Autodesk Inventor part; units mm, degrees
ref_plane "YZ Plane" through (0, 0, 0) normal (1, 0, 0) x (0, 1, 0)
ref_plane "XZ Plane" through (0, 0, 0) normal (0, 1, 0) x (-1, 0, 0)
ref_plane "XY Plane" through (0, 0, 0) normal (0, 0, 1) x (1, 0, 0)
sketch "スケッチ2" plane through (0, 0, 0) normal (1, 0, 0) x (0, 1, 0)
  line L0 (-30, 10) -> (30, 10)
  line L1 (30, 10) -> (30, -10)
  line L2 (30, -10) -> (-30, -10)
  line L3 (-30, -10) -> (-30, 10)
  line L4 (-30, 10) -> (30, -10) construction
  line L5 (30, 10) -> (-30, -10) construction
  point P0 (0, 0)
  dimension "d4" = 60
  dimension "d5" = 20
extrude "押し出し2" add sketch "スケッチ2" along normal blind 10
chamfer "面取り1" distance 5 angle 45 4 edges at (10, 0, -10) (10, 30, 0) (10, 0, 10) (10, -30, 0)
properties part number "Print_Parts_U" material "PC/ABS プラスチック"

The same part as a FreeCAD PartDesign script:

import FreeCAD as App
import Part
import Sketcher
from FreeCAD import Vector
Q = App.Units.Quantity


def edges_at(feature, points):
    """Names of the edges that pass closest to the given points."""
    edges = feature.Shape.Edges
    near = lambda p: min(range(len(edges)), key=lambda i: edges[i].distToShape(Part.Vertex(*p))[0])
    return sorted({f"Edge{near(p) + 1}" for p in points})

doc = App.newDocument("Part")
body = doc.addObject("PartDesign::Body", "Body")

# Sketch on YZ plane
sketch1 = doc.addObject("Sketcher::SketchObject", "Sketch")
body.addObject(sketch1)
sketch1.AttachmentSupport = (doc.YZ_Plane, [""])
sketch1.MapMode = "FlatFace"
sketch1.addGeometry(Part.LineSegment(Vector(30, 10, 0), Vector(-30, 10, 0)), False)
sketch1.addGeometry(Part.LineSegment(Vector(-30, 10, 0), Vector(-30, -10, 0)), False)
sketch1.addGeometry(Part.LineSegment(Vector(-30, -10, 0), Vector(30, -10, 0)), False)
sketch1.addGeometry(Part.LineSegment(Vector(30, -10, 0), Vector(30, 10, 0)), False)
sketch1.addConstraint(Sketcher.Constraint("Coincident", 0, 2, 1, 1))
sketch1.addConstraint(Sketcher.Constraint("Coincident", 1, 2, 2, 1))
sketch1.addConstraint(Sketcher.Constraint("Coincident", 2, 2, 3, 1))
sketch1.addConstraint(Sketcher.Constraint("Coincident", 3, 2, 0, 1))
sketch1.addConstraint(Sketcher.Constraint("Horizontal", 0))
sketch1.addConstraint(Sketcher.Constraint("Vertical", 1))
sketch1.addConstraint(Sketcher.Constraint("Horizontal", 2))
sketch1.addConstraint(Sketcher.Constraint("Vertical", 3))
sketch1.addConstraint(Sketcher.Constraint("Symmetric", 0, 2, 2, 2, -1, 1))
sketch1.addConstraint(Sketcher.Constraint("DistanceX", 0, 2, 0, 1, Q("60 mm")))
sketch1.addConstraint(Sketcher.Constraint("DistanceY", 1, 2, 1, 1, Q("20 mm")))
pad1 = doc.addObject("PartDesign::Pad", "Pad")
body.addObject(pad1)
pad1.Profile = sketch1
pad1.Length = 10
doc.recompute()

chamfer = doc.addObject("PartDesign::Chamfer", "Chamfer")
body.addObject(chamfer)
chamfer.Base = (pad1, edges_at(pad1, [
    (10, 0, -10),
    (10, 30, 0),
    (10, 0, 10),
    (10, -30, 0),
]))
chamfer.Size = 5

doc.recompute()
